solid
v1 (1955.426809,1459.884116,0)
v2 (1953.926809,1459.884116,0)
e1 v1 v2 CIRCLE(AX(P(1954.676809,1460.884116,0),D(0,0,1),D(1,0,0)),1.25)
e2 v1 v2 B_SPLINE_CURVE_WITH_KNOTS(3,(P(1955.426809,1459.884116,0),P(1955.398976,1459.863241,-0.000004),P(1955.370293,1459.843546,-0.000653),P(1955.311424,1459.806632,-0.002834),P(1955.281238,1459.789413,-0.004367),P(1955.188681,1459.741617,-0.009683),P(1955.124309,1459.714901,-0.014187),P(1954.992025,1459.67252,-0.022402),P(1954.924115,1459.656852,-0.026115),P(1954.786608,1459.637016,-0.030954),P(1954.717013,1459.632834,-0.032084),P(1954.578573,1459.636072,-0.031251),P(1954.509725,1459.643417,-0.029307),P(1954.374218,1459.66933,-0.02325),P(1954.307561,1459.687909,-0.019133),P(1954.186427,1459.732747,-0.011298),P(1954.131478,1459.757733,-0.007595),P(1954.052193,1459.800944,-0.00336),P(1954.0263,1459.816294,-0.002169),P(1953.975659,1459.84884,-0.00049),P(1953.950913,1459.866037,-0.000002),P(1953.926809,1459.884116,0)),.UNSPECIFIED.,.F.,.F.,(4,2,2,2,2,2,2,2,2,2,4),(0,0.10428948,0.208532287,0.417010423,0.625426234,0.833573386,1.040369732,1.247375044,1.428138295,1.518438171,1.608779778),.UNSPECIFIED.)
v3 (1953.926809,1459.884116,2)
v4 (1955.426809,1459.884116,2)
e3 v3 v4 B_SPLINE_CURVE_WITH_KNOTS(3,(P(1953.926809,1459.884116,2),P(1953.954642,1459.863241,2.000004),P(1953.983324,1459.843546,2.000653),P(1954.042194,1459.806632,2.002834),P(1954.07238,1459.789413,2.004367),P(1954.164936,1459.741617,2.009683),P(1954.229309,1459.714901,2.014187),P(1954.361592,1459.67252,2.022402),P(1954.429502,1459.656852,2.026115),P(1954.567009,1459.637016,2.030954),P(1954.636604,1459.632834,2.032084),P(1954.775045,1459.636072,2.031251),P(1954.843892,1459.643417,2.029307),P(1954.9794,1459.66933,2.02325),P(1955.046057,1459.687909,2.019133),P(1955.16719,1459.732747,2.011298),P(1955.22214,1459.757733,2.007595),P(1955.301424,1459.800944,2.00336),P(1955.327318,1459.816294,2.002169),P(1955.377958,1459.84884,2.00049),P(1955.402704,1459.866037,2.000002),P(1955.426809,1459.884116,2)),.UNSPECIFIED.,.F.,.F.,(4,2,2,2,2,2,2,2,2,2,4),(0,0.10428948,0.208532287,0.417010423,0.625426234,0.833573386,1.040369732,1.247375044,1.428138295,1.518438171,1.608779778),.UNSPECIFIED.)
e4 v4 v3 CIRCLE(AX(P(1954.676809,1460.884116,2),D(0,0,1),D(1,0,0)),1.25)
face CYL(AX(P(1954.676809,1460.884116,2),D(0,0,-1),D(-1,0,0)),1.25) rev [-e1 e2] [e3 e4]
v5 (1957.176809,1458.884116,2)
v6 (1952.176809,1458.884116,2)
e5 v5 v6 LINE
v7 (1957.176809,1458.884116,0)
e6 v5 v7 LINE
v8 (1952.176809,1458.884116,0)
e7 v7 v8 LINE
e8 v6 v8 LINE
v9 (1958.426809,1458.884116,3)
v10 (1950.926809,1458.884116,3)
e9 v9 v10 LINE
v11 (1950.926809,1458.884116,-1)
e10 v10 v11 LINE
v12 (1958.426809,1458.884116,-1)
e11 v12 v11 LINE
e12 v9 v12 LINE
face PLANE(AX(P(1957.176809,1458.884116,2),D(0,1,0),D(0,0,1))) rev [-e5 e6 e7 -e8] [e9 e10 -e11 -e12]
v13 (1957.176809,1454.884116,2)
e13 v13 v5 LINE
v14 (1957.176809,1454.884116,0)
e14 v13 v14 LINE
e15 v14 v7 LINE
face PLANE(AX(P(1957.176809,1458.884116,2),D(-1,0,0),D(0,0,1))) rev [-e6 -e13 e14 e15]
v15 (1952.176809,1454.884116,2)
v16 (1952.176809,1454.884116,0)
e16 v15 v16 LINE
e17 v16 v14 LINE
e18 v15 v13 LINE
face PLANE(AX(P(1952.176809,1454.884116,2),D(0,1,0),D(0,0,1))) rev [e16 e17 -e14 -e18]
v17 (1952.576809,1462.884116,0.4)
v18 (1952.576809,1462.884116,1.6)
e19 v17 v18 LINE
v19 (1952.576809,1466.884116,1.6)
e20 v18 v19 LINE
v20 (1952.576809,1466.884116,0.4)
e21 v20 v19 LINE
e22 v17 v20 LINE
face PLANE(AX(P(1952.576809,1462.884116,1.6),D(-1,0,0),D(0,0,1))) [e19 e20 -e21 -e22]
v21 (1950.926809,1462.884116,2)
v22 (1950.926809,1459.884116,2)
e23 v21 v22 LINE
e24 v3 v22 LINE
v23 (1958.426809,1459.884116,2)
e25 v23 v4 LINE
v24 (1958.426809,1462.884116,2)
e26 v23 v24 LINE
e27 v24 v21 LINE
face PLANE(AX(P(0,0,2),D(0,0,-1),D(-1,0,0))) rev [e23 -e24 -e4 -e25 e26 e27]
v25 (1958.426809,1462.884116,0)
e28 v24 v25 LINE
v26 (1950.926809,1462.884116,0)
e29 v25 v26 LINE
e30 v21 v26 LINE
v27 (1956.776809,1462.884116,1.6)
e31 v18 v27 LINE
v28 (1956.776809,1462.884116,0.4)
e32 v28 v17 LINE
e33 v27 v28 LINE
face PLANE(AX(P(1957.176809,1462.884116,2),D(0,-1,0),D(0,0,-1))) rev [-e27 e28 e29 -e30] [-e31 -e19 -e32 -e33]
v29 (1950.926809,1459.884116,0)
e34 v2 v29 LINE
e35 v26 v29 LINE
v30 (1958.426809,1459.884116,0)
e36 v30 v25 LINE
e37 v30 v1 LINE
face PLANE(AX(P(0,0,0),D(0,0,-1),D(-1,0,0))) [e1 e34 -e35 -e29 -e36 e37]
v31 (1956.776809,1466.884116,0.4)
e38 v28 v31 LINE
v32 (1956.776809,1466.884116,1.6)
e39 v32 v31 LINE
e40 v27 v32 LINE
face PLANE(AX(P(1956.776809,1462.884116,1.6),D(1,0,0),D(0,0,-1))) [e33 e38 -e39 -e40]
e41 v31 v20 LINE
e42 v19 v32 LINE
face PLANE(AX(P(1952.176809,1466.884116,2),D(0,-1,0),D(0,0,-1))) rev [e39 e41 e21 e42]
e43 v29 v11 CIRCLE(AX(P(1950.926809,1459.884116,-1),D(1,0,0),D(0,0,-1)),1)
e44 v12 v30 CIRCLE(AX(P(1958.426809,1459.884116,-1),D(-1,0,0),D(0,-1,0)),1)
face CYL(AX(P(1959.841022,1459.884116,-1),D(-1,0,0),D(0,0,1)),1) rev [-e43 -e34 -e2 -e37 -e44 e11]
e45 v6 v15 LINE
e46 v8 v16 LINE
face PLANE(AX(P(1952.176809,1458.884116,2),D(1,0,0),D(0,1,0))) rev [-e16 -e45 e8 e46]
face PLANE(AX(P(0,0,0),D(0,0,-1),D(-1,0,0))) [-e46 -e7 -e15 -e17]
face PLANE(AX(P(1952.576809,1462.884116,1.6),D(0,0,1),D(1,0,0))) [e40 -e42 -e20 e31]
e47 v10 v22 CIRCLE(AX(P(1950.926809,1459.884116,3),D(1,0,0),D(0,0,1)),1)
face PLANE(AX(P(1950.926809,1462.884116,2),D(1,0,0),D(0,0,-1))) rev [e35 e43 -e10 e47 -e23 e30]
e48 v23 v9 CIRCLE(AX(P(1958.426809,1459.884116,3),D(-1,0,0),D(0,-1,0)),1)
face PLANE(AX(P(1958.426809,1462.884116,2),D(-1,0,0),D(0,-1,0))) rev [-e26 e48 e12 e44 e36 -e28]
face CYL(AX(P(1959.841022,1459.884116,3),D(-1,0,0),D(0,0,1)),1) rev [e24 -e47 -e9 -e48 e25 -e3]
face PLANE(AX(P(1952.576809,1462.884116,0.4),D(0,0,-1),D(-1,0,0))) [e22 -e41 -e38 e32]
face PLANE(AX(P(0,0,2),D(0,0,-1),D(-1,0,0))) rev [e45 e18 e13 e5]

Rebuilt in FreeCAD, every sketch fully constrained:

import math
import FreeCAD as App
import Part
import Sketcher
from FreeCAD import Vector

doc = App.newDocument("Part")
body = doc.addObject("PartDesign::Body", "Body")

# Sketch on XY plane
sketch1 = body.newObject("Sketcher::SketchObject", "Sketch")
sketch1.AttachmentSupport = (doc.getObject("XY_Plane"), [""])
sketch1.MapMode = "FlatFace"
sketch1.addGeometry([
    Part.LineSegment(Vector(1957.176809, 1466.884116, 0), Vector(1952.176809, 1466.884116, 0)),  # 0
    Part.LineSegment(Vector(1952.176809, 1466.884116, 0), Vector(1952.176809, 1462.884116, 0)),  # 1
    Part.LineSegment(Vector(1952.176809, 1462.884116, 0), Vector(1950.926809, 1462.884116, 0)),  # 2
    Part.LineSegment(Vector(1950.926809, 1462.884116, 0), Vector(1950.926809, 1458.884116, 0)),  # 3
    Part.LineSegment(Vector(1950.926809, 1458.884116, 0), Vector(1952.176809, 1458.884116, 0)),  # 4
    Part.LineSegment(Vector(1952.176809, 1458.884116, 0), Vector(1952.176809, 1454.884116, 0)),  # 5
    Part.LineSegment(Vector(1952.176809, 1454.884116, 0), Vector(1957.176809, 1454.884116, 0)),  # 6
    Part.LineSegment(Vector(1957.176809, 1454.884116, 0), Vector(1957.176809, 1458.884116, 0)),  # 7
    Part.LineSegment(Vector(1957.176809, 1458.884116, 0), Vector(1958.426809, 1458.884116, 0)),  # 8
    Part.LineSegment(Vector(1958.426809, 1458.884116, 0), Vector(1958.426809, 1462.884116, 0)),  # 9
    Part.LineSegment(Vector(1958.426809, 1462.884116, 0), Vector(1957.176809, 1462.884116, 0)),  # 10
    Part.LineSegment(Vector(1957.176809, 1462.884116, 0), Vector(1957.176809, 1466.884116, 0)),  # 11
    Part.Circle(Vector(1954.676809, 1460.884116, 0), Vector(0, 0, 1), 1.25),  # 12
], False)
sketch1.addConstraint([
    Sketcher.Constraint("Coincident", 0, 2, 1, 1),
    Sketcher.Constraint("Coincident", 1, 2, 2, 1),
    Sketcher.Constraint("Coincident", 2, 2, 3, 1),
    Sketcher.Constraint("Coincident", 3, 2, 4, 1),
    Sketcher.Constraint("Coincident", 4, 2, 5, 1),
    Sketcher.Constraint("Coincident", 5, 2, 6, 1),
    Sketcher.Constraint("Coincident", 6, 2, 7, 1),
    Sketcher.Constraint("Coincident", 7, 2, 8, 1),
    Sketcher.Constraint("Coincident", 8, 2, 9, 1),
    Sketcher.Constraint("Coincident", 9, 2, 10, 1),
    Sketcher.Constraint("Coincident", 10, 2, 11, 1),
    Sketcher.Constraint("Coincident", 11, 2, 0, 1),
    Sketcher.Constraint("Horizontal", 0),
    Sketcher.Constraint("Vertical", 1),
    Sketcher.Constraint("Horizontal", 2),
    Sketcher.Constraint("Vertical", 3),
    Sketcher.Constraint("Horizontal", 4),
    Sketcher.Constraint("Vertical", 5),
    Sketcher.Constraint("Horizontal", 6),
    Sketcher.Constraint("Vertical", 7),
    Sketcher.Constraint("Horizontal", 8),
    Sketcher.Constraint("Vertical", 9),
    Sketcher.Constraint("Horizontal", 10),
    Sketcher.Constraint("Vertical", 11),
    Sketcher.Constraint("Horizontal", 4, 2, 7, 2),
    Sketcher.Constraint("Horizontal", 2, 2, 9, 2),
    Sketcher.Constraint("Vertical", 1, 2, 4, 2),
    Sketcher.Constraint("Vertical", 7, 2, 10, 2),
    Sketcher.Constraint("Equal", 4, 8),
    Sketcher.Constraint("Equal", 1, 3),
    Sketcher.Constraint("Equal", 3, 5),
    Sketcher.Constraint("Diameter", 12, 2.5),
    Sketcher.Constraint("DistanceX", 0, 2, 0, 1, 5.0),
    Sketcher.Constraint("DistanceY", 1, 2, 1, 1, 4.0),
    Sketcher.Constraint("DistanceY", 12, 3, 0, 2, 6.0),
    Sketcher.Constraint("DistanceX", 2, 2, 2, 1, 1.25),
    Sketcher.Constraint("DistanceX", 0, 2, 12, 3, 2.5),
    Sketcher.Constraint("DistanceX", -1, 1, 12, 3, 1954.676809),
    Sketcher.Constraint("DistanceY", -1, 1, 12, 3, 1460.884116),
])
pad1 = body.newObject("PartDesign::Pad", "Pad")
pad1.Profile = sketch1
pad1.Length = 2

# Sketch on YZ plane
sketch2 = body.newObject("Sketcher::SketchObject", "Sketch001")
sketch2.AttachmentSupport = (doc.getObject("YZ_Plane"), [""])
sketch2.MapMode = "FlatFace"
sketch2.AttachmentOffset = App.Placement(Vector(0, 0, 1950.926809), App.Rotation())
sketch2.addGeometry([
    Part.LineSegment(Vector(1459.884116, 2, 0), Vector(1458.884116, 2, 0)),  # 0
    Part.LineSegment(Vector(1458.884116, 2, 0), Vector(1458.884116, 3, 0)),  # 1
    Part.ArcOfCircle(Part.Circle(Vector(1459.884116, 3, 0), Vector(0, 0, 1), 1), math.radians(-180), math.radians(-90)),  # 2
    Part.LineSegment(Vector(1458.884116, -1, 0), Vector(1458.884116, 0, 0)),  # 3
    Part.LineSegment(Vector(1458.884116, 0, 0), Vector(1459.884116, 0, 0)),  # 4
    Part.ArcOfCircle(Part.Circle(Vector(1459.884116, -1, 0), Vector(0, 0, 1), 1), math.radians(90), math.radians(180)),  # 5
], False)
sketch2.addConstraint([
    Sketcher.Constraint("Coincident", 0, 2, 1, 1),
    Sketcher.Constraint("Tangent", 1, 2, 2, 1),
    Sketcher.Constraint("Tangent", 2, 2, 0, 1),
    Sketcher.Constraint("Coincident", 3, 2, 4, 1),
    Sketcher.Constraint("Tangent", 4, 2, 5, 1),
    Sketcher.Constraint("Tangent", 5, 2, 3, 1),
    Sketcher.Constraint("Horizontal", 0),
    Sketcher.Constraint("Vertical", 1),
    Sketcher.Constraint("Vertical", 3),
    Sketcher.Constraint("Horizontal", 4),
    Sketcher.Constraint("Equal", 2, 5),
    Sketcher.Constraint("PointOnObject", 3, 2, -1),
    Sketcher.Constraint("Vertical", 2, 3, 5, 3),
    Sketcher.Constraint("Radius", 2, 1.0),
    Sketcher.Constraint("DistanceY", -1, 1, 2, 3, 3.0),
    Sketcher.Constraint("DistanceX", -1, 1, 2, 3, 1459.884116),
])
pad2 = body.newObject("PartDesign::Pad", "Pad001")
pad2.Profile = sketch2
pad2.Length = 7.5

# Sketch on XY plane
sketch3 = body.newObject("Sketcher::SketchObject", "Sketch002")
sketch3.AttachmentSupport = (doc.getObject("XY_Plane"), [""])
sketch3.MapMode = "FlatFace"
sketch3.AttachmentOffset = App.Placement(Vector(0, 0, 2), App.Rotation())
sketch3.addGeometry(Part.Circle(Vector(1954.676809, 1460.884116, 0), Vector(0, 0, 1), 1.25), False)
sketch3.addConstraint([
    Sketcher.Constraint("Diameter", 0, 2.5),
    Sketcher.Constraint("DistanceX", -1, 1, 0, 3, 1954.676809),
    Sketcher.Constraint("DistanceY", -1, 1, 0, 3, 1460.884116),
])
pocket1 = body.newObject("PartDesign::Pocket", "Pocket")
pocket1.Profile = sketch3
pocket1.Type = "ThroughAll"
pocket1.Midplane = True

# Sketch on XZ plane
sketch4 = body.newObject("Sketcher::SketchObject", "Sketch003")
sketch4.AttachmentSupport = (doc.getObject("XZ_Plane"), [""])
sketch4.MapMode = "FlatFace"
sketch4.AttachmentOffset = App.Placement(Vector(0, 0, -1466.884116), App.Rotation())
sketch4.addGeometry([
    Part.LineSegment(Vector(1952.176809, 0, 0), Vector(1952.176809, 2, 0)),  # 0
    Part.LineSegment(Vector(1952.176809, 2, 0), Vector(1957.176809, 2, 0)),  # 1
    Part.LineSegment(Vector(1957.176809, 2, 0), Vector(1957.176809, 0, 0)),  # 2
    Part.LineSegment(Vector(1957.176809, 0, 0), Vector(1952.176809, 0, 0)),  # 3
    Part.LineSegment(Vector(1956.776809, 1.6, 0), Vector(1952.576809, 1.6, 0)),  # 4
    Part.LineSegment(Vector(1952.576809, 1.6, 0), Vector(1952.576809, 0.4, 0)),  # 5
    Part.LineSegment(Vector(1952.576809, 0.4, 0), Vector(1956.776809, 0.4, 0)),  # 6
    Part.LineSegment(Vector(1956.776809, 0.4, 0), Vector(1956.776809, 1.6, 0)),  # 7
], False)
sketch4.addConstraint([
    Sketcher.Constraint("Coincident", 0, 2, 1, 1),
    Sketcher.Constraint("Coincident", 1, 2, 2, 1),
    Sketcher.Constraint("Coincident", 2, 2, 3, 1),
    Sketcher.Constraint("Coincident", 3, 2, 0, 1),
    Sketcher.Constraint("Coincident", 4, 2, 5, 1),
    Sketcher.Constraint("Coincident", 5, 2, 6, 1),
    Sketcher.Constraint("Coincident", 6, 2, 7, 1),
    Sketcher.Constraint("Coincident", 7, 2, 4, 1),
    Sketcher.Constraint("Vertical", 0),
    Sketcher.Constraint("Horizontal", 1),
    Sketcher.Constraint("Vertical", 2),
    Sketcher.Constraint("Horizontal", 3),
    Sketcher.Constraint("Horizontal", 4),
    Sketcher.Constraint("Vertical", 5),
    Sketcher.Constraint("Horizontal", 6),
    Sketcher.Constraint("Vertical", 7),
    Sketcher.Constraint("PointOnObject", 2, 2, -1),
    Sketcher.Constraint("DistanceX", 1, 1, 1, 2, 5.0),
    Sketcher.Constraint("DistanceY", 0, 1, 0, 2, 2.0),
    Sketcher.Constraint("DistanceX", 4, 2, 4, 1, 4.2),
    Sketcher.Constraint("DistanceY", 5, 2, 5, 1, 1.2),
    Sketcher.Constraint("DistanceY", -1, 1, 4, 2, 1.6),
    Sketcher.Constraint("DistanceX", 0, 2, 4, 2, 0.4),
    Sketcher.Constraint("DistanceX", -1, 1, 0, 2, 1952.176809),
])
pocket2 = body.newObject("PartDesign::Pocket", "Pocket001")
pocket2.Profile = sketch4
pocket2.Length = 4
pocket2.Reversed = True

doc.recompute()
